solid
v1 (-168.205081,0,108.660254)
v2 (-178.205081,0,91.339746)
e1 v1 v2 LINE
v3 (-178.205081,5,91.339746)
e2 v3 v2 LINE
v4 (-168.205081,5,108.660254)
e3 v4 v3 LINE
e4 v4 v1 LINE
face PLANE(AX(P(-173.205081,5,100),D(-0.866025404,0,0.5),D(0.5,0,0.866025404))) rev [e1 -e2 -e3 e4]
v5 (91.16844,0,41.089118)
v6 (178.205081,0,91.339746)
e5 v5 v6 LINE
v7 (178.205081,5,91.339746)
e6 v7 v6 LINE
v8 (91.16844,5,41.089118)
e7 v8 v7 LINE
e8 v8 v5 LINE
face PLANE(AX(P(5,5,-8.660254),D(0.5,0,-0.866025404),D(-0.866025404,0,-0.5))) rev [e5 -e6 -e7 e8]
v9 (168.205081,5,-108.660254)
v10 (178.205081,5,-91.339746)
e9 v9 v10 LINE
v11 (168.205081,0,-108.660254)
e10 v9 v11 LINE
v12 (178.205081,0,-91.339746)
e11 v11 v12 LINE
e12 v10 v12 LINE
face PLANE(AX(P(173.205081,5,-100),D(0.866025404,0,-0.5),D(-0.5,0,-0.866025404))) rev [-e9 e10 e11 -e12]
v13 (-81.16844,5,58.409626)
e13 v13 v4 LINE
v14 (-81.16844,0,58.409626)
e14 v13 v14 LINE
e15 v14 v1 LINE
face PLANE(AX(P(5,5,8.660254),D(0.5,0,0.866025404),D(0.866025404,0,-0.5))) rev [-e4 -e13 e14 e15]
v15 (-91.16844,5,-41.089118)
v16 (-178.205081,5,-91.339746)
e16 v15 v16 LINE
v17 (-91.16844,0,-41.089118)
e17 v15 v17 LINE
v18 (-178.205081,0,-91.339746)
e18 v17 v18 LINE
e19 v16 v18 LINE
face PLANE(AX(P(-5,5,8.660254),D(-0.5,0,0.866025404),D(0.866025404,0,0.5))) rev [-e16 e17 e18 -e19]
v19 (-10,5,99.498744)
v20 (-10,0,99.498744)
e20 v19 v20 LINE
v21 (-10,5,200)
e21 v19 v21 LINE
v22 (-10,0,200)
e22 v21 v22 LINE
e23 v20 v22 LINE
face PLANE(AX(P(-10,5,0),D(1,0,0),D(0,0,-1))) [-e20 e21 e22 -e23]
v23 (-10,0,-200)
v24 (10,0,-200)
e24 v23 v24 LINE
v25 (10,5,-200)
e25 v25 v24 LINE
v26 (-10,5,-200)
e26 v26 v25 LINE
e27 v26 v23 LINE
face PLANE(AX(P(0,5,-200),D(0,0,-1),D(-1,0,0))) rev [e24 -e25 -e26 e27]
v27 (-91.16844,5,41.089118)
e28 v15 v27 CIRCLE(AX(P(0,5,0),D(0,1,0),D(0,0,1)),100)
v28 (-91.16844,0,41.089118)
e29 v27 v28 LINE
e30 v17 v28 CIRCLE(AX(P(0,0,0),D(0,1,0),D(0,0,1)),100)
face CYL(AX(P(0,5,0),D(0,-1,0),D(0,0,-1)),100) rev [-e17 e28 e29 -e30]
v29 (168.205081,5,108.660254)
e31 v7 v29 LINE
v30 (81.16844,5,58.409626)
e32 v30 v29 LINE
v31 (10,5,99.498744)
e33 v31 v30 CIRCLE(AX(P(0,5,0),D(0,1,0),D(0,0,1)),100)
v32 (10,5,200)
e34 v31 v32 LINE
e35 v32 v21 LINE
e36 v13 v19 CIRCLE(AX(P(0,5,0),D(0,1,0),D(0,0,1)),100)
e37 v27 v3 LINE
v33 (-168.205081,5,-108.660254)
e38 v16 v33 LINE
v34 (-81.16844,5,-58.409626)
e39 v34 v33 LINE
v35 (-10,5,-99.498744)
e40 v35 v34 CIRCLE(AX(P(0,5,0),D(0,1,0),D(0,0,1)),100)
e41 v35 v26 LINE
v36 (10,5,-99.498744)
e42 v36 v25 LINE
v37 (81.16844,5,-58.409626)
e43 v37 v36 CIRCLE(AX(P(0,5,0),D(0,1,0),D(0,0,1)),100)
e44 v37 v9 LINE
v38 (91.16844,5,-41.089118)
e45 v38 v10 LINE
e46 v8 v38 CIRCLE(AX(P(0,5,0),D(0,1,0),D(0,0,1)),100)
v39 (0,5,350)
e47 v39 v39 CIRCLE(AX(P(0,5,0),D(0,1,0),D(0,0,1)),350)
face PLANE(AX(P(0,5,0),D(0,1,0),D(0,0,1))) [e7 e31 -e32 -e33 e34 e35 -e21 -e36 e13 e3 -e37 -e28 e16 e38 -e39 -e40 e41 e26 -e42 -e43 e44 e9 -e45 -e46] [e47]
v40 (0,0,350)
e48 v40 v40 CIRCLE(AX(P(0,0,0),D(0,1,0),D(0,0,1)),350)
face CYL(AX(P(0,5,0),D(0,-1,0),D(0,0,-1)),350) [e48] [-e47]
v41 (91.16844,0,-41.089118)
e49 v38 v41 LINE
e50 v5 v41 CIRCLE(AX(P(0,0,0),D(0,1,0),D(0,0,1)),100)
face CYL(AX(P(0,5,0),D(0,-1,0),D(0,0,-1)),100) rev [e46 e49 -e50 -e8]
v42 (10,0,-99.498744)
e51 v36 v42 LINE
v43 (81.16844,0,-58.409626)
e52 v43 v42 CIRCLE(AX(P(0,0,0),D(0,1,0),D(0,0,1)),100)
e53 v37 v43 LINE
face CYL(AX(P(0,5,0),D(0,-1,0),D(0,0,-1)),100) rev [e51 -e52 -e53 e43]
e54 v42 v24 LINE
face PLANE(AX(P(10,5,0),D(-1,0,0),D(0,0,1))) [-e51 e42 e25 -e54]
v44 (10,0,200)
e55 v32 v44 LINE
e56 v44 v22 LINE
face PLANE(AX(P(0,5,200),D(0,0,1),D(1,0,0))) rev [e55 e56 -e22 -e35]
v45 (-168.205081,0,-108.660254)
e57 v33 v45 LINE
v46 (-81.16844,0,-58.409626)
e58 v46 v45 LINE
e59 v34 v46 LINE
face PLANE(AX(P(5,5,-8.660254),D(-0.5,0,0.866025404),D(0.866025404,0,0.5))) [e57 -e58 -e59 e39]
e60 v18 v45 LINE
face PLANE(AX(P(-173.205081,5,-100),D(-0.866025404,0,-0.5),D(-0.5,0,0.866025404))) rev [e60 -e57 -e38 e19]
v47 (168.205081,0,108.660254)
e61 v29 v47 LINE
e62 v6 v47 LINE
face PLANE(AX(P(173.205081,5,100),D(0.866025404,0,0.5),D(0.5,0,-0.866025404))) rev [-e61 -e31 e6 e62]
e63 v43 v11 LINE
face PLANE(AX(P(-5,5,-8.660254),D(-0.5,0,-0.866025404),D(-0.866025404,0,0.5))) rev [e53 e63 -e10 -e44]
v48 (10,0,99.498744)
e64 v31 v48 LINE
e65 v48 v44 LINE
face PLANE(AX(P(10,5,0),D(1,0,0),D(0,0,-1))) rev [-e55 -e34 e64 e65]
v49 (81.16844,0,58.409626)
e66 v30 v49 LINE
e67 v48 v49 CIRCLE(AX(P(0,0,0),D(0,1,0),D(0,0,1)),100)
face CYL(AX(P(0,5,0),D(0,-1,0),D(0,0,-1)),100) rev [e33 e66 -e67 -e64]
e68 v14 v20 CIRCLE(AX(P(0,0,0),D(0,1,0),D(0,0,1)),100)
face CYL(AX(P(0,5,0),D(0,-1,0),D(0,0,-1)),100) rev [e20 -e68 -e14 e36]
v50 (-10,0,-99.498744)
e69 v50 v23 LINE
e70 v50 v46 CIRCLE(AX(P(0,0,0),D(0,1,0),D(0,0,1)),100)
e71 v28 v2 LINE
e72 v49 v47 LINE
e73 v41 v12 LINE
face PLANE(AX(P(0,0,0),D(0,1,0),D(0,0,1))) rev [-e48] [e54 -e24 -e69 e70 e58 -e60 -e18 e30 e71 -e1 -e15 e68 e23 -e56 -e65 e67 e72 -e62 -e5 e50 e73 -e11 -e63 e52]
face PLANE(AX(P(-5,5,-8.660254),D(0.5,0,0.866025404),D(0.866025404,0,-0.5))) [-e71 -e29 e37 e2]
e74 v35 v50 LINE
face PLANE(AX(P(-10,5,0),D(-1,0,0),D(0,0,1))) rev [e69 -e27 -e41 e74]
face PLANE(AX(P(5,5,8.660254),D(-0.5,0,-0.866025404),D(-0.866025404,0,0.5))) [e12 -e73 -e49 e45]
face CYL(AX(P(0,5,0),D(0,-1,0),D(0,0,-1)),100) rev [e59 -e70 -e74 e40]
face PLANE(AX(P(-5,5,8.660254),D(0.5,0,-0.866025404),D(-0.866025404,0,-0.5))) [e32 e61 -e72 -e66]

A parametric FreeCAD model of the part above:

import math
import FreeCAD as App
import Part
import Sketcher

V = App.Vector
Q = App.Units.Quantity

doc = App.newDocument("Part")
params = doc.addObject("Spreadsheet::Sheet", "Params")
for row, (alias, value) in enumerate([
    ("sketch1_diameter", "700 mm"),
    ("sketch1_radius", "100 mm"),
    ("sketch1_width", "20 mm"),
    ("sketch1_length", "20 mm"),
    ("pad1_length", "5 mm"),
], start=1):
    params.set(f"A{row}", alias)
    params.set(f"B{row}", "=" + value)
    params.setAlias(f"B{row}", alias)

body = doc.addObject("PartDesign::Body", "Body")

sketch1 = body.newObject("Sketcher::SketchObject", "Sketch")
sketch1.AttachmentSupport = (doc.getObject("XZ_Plane"), [""])
sketch1.MapMode = "FlatFace"
sketch1.addGeometry(Part.Circle(V(0, 0, 0), V(0, 0, 1), 350), False)
sketch1.addGeometry(Part.ArcOfCircle(Part.Circle(V(0, 0, 0), V(0, 0, 1), 100), math.radians(-84.26), math.radians(-74.48)), False)
sketch1.addGeometry(Part.ArcOfCircle(Part.Circle(V(0, 0, 0), V(0, 0, 1), 100), math.radians(-74), math.radians(-46)), False)
sketch1.addGeometry(Part.ArcOfCircle(Part.Circle(V(0, 0, 0), V(0, 0, 1), 100), math.radians(-45.52), math.radians(-35.74)), False)
sketch1.addGeometry(Part.LineSegment(V(81, -58, 0), V(168, -109, 0)), False)
sketch1.addGeometry(Part.LineSegment(V(168, -109, 0), V(178, -91, 0)), False)
sketch1.addGeometry(Part.LineSegment(V(178, -91, 0), V(91, -41, 0)), False)
sketch1.addGeometry(Part.ArcOfCircle(Part.Circle(V(0, 0, 0), V(0, 0, 1), 100), math.radians(-24.26), math.radians(-14.48)), False)
sketch1.addGeometry(Part.ArcOfCircle(Part.Circle(V(0, 0, 0), V(0, 0, 1), 100), math.radians(-14), math.radians(14)), False)
sketch1.addGeometry(Part.ArcOfCircle(Part.Circle(V(0, 0, 0), V(0, 0, 1), 100), math.radians(14.48), math.radians(24.26)), False)
sketch1.addGeometry(Part.LineSegment(V(91, 41, 0), V(178, 91, 0)), False)
sketch1.addGeometry(Part.LineSegment(V(178, 91, 0), V(168, 109, 0)), False)
sketch1.addGeometry(Part.LineSegment(V(168, 109, 0), V(81, 58, 0)), False)
sketch1.addGeometry(Part.ArcOfCircle(Part.Circle(V(0, 0, 0), V(0, 0, 1), 100), math.radians(35.74), math.radians(45.52)), False)
sketch1.addGeometry(Part.ArcOfCircle(Part.Circle(V(0, 0, 0), V(0, 0, 1), 100), math.radians(46), math.radians(74)), False)
sketch1.addGeometry(Part.ArcOfCircle(Part.Circle(V(0, 0, 0), V(0, 0, 1), 100), math.radians(74.48), math.radians(84.26)), False)
sketch1.addGeometry(Part.LineSegment(V(10, 99, 0), V(10, 200, 0)), False)
sketch1.addGeometry(Part.LineSegment(V(10, 200, 0), V(-10, 200, 0)), False)
sketch1.addGeometry(Part.LineSegment(V(-10, 200, 0), V(-10, 99, 0)), False)
sketch1.addGeometry(Part.ArcOfCircle(Part.Circle(V(0, 0, 0), V(0, 0, 1), 100), math.radians(95.74), math.radians(105.52)), False)
sketch1.addGeometry(Part.ArcOfCircle(Part.Circle(V(0, 0, 0), V(0, 0, 1), 100), math.radians(106), math.radians(134)), False)
sketch1.addGeometry(Part.ArcOfCircle(Part.Circle(V(0, 0, 0), V(0, 0, 1), 100), math.radians(134.48), math.radians(144.26)), False)
sketch1.addGeometry(Part.LineSegment(V(-81, 58, 0), V(-168, 109, 0)), False)
sketch1.addGeometry(Part.LineSegment(V(-168, 109, 0), V(-178, 91, 0)), False)
sketch1.addGeometry(Part.LineSegment(V(-178, 91, 0), V(-91, 41, 0)), False)
sketch1.addGeometry(Part.ArcOfCircle(Part.Circle(V(0, 0, 0), V(0, 0, 1), 100), math.radians(155.74), math.radians(165.52)), False)
sketch1.addGeometry(Part.ArcOfCircle(Part.Circle(V(0, 0, 0), V(0, 0, 1), 100), math.radians(166), math.radians(194)), False)
sketch1.addGeometry(Part.ArcOfCircle(Part.Circle(V(0, 0, 0), V(0, 0, 1), 100), math.radians(-165.52), math.radians(-155.74)), False)
sketch1.addGeometry(Part.LineSegment(V(-91, -41, 0), V(-178, -91, 0)), False)
sketch1.addGeometry(Part.LineSegment(V(-178, -91, 0), V(-168, -109, 0)), False)
sketch1.addGeometry(Part.LineSegment(V(-168, -109, 0), V(-81, -58, 0)), False)
sketch1.addGeometry(Part.ArcOfCircle(Part.Circle(V(0, 0, 0), V(0, 0, 1), 100), math.radians(-144.26), math.radians(-134.48)), False)
sketch1.addGeometry(Part.ArcOfCircle(Part.Circle(V(0, 0, 0), V(0, 0, 1), 100), math.radians(-134), math.radians(-106)), False)
sketch1.addGeometry(Part.ArcOfCircle(Part.Circle(V(0, 0, 0), V(0, 0, 1), 100), math.radians(-105.52), math.radians(-95.74)), False)
sketch1.addGeometry(Part.LineSegment(V(-10, -99, 0), V(-10, -200, 0)), False)
sketch1.addGeometry(Part.LineSegment(V(-10, -200, 0), V(10, -200, 0)), False)
sketch1.addGeometry(Part.LineSegment(V(10, -200, 0), V(10, -99, 0)), False)
sketch1.addConstraint(Sketcher.Constraint("Tangent", 1, 2, 2, 1))
sketch1.addConstraint(Sketcher.Constraint("Tangent", 2, 2, 3, 1))
sketch1.addConstraint(Sketcher.Constraint("Coincident", 3, 2, 4, 1))
sketch1.addConstraint(Sketcher.Constraint("Coincident", 4, 2, 5, 1))
sketch1.addConstraint(Sketcher.Constraint("Coincident", 5, 2, 6, 1))
sketch1.addConstraint(Sketcher.Constraint("Coincident", 6, 2, 7, 1))
sketch1.addConstraint(Sketcher.Constraint("Tangent", 7, 2, 8, 1))
sketch1.addConstraint(Sketcher.Constraint("Tangent", 8, 2, 9, 1))
sketch1.addConstraint(Sketcher.Constraint("Coincident", 9, 2, 10, 1))
sketch1.addConstraint(Sketcher.Constraint("Coincident", 10, 2, 11, 1))
sketch1.addConstraint(Sketcher.Constraint("Coincident", 11, 2, 12, 1))
sketch1.addConstraint(Sketcher.Constraint("Coincident", 12, 2, 13, 1))
sketch1.addConstraint(Sketcher.Constraint("Tangent", 13, 2, 14, 1))
sketch1.addConstraint(Sketcher.Constraint("Tangent", 14, 2, 15, 1))
sketch1.addConstraint(Sketcher.Constraint("Coincident", 15, 2, 16, 1))
sketch1.addConstraint(Sketcher.Constraint("Coincident", 16, 2, 17, 1))
sketch1.addConstraint(Sketcher.Constraint("Coincident", 17, 2, 18, 1))
sketch1.addConstraint(Sketcher.Constraint("Coincident", 18, 2, 19, 1))
sketch1.addConstraint(Sketcher.Constraint("Tangent", 19, 2, 20, 1))
sketch1.addConstraint(Sketcher.Constraint("Tangent", 20, 2, 21, 1))
sketch1.addConstraint(Sketcher.Constraint("Coincident", 21, 2, 22, 1))
sketch1.addConstraint(Sketcher.Constraint("Coincident", 22, 2, 23, 1))
sketch1.addConstraint(Sketcher.Constraint("Coincident", 23, 2, 24, 1))
sketch1.addConstraint(Sketcher.Constraint("Coincident", 24, 2, 25, 1))
sketch1.addConstraint(Sketcher.Constraint("Tangent", 25, 2, 26, 1))
sketch1.addConstraint(Sketcher.Constraint("Tangent", 26, 2, 27, 1))
sketch1.addConstraint(Sketcher.Constraint("Coincident", 27, 2, 28, 1))
sketch1.addConstraint(Sketcher.Constraint("Coincident", 28, 2, 29, 1))
sketch1.addConstraint(Sketcher.Constraint("Coincident", 29, 2, 30, 1))
sketch1.addConstraint(Sketcher.Constraint("Coincident", 30, 2, 31, 1))
sketch1.addConstraint(Sketcher.Constraint("Tangent", 31, 2, 32, 1))
sketch1.addConstraint(Sketcher.Constraint("Tangent", 32, 2, 33, 1))
sketch1.addConstraint(Sketcher.Constraint("Coincident", 33, 2, 34, 1))
sketch1.addConstraint(Sketcher.Constraint("Coincident", 34, 2, 35, 1))
sketch1.addConstraint(Sketcher.Constraint("Coincident", 35, 2, 36, 1))
sketch1.addConstraint(Sketcher.Constraint("Coincident", 36, 2, 1, 1))
sketch1.addConstraint(Sketcher.Constraint("Vertical", 16))
sketch1.addConstraint(Sketcher.Constraint("Horizontal", 17))
sketch1.addConstraint(Sketcher.Constraint("Vertical", 18))
sketch1.addConstraint(Sketcher.Constraint("Vertical", 34))
sketch1.addConstraint(Sketcher.Constraint("Horizontal", 35))
sketch1.addConstraint(Sketcher.Constraint("Vertical", 36))
sketch1.addConstraint(Sketcher.Constraint("Coincident", 0, 3, -1, 1))
sketch1.addConstraint(Sketcher.Constraint("Coincident", 1, 3, -1, 1))
sketch1.addConstraint(Sketcher.Constraint("Coincident", 3, 3, -1, 1))
sketch1.addConstraint(Sketcher.Constraint("Coincident", 7, 3, -1, 1))
sketch1.addConstraint(Sketcher.Constraint("Coincident", 9, 3, -1, 1))
sketch1.addConstraint(Sketcher.Constraint("Coincident", 13, 3, -1, 1))
sketch1.addConstraint(Sketcher.Constraint("Coincident", 15, 3, -1, 1))
sketch1.addConstraint(Sketcher.Constraint("Coincident", 19, 3, -1, 1))
sketch1.addConstraint(Sketcher.Constraint("Coincident", 21, 3, -1, 1))
sketch1.addConstraint(Sketcher.Constraint("Coincident", 25, 3, -1, 1))
sketch1.addConstraint(Sketcher.Constraint("Coincident", 27, 3, -1, 1))
sketch1.addConstraint(Sketcher.Constraint("Coincident", 31, 3, -1, 1))
sketch1.addConstraint(Sketcher.Constraint("Coincident", 33, 3, -1, 1))
sketch1.addConstraint(Sketcher.Constraint("Equal", 3, 7))
sketch1.addConstraint(Sketcher.Constraint("Equal", 9, 13))
sketch1.addConstraint(Sketcher.Constraint("Equal", 15, 19))
sketch1.addConstraint(Sketcher.Constraint("Equal", 21, 25))
sketch1.addConstraint(Sketcher.Constraint("Equal", 27, 31))
sketch1.addConstraint(Sketcher.Constraint("Symmetric", 4, 2, 22, 2, -1, 1))
sketch1.addConstraint(Sketcher.Constraint("Symmetric", 5, 2, 23, 2, -1, 1))
sketch1.addConstraint(Sketcher.Constraint("Symmetric", 10, 2, 28, 2, -1, 1))
sketch1.addConstraint(Sketcher.Constraint("Symmetric", 11, 2, 29, 2, -1, 1))
sketch1.addConstraint(Sketcher.Constraint("Symmetric", 16, 2, 34, 2, -1, 1))
sketch1.addConstraint(Sketcher.Constraint("Symmetric", 11, 2, 22, 2, -2))
sketch1.addConstraint(Sketcher.Constraint("Symmetric", 10, 2, 23, 2, -2))
sketch1.addConstraint(Sketcher.Constraint("Perpendicular", 4, 5))
sketch1.addConstraint(Sketcher.Constraint("Perpendicular", 5, 6))
sketch1.addConstraint(Sketcher.Constraint("Perpendicular", 10, 11))
sketch1.addConstraint(Sketcher.Constraint("Perpendicular", 11, 12))
sketch1.addConstraint(Sketcher.Constraint("Parallel", 6, 22))
sketch1.addConstraint(Sketcher.Constraint("Perpendicular", 23, 24))
sketch1.addConstraint(Sketcher.Constraint("Parallel", 12, 28))
sketch1.addConstraint(Sketcher.Constraint("Perpendicular", 29, 30))
sketch1.addConstraint(Sketcher.Constraint("Horizontal", 15, 2, 18, 2))
sketch1.addConstraint(Sketcher.Constraint("Horizontal", 14, 2, 19, 2))
sketch1.addConstraint(Sketcher.Constraint("Horizontal", 13, 2, 20, 2))
sketch1.addConstraint(Sketcher.Constraint("Horizontal", 8, 2, 25, 2))
sketch1.addConstraint(Sketcher.Constraint("Horizontal", 7, 2, 26, 2))
sketch1.addConstraint(Sketcher.Constraint("Horizontal", 2, 2, 31, 2))
sketch1.addConstraint(Sketcher.Constraint("Horizontal", 1, 2, 32, 2))
sketch1.addConstraint(Sketcher.Constraint("Horizontal", 33, 2, 36, 2))
sketch1.addConstraint(Sketcher.Constraint("Vertical", 7, 2, 8, 2))
sketch1.addConstraint(Sketcher.Constraint("Vertical", 2, 2, 13, 2))
sketch1.addConstraint(Sketcher.Constraint("Vertical", 1, 2, 14, 2))
sketch1.addConstraint(Sketcher.Constraint("Equal", 4, 6))
sketch1.addConstraint(Sketcher.Constraint("Diameter", 0, 700.0))
sketch1.addConstraint(Sketcher.Constraint("Radius", 1, 100.0))
sketch1.addConstraint(Sketcher.Constraint("DistanceX", 17, 2, 17, 1, 20.0))
sketch1.addConstraint(Sketcher.Constraint("Angle", 4, Q("-30 deg")))
sketch1.addConstraint(Sketcher.Constraint("Distance", 5, 20.0))
sketch1.addConstraint(Sketcher.Constraint("DistanceY", 7, 2, -1, 1, 25.0))
sketch1.addConstraint(Sketcher.Constraint("DistanceY", -1, 1, 16, 2, 200.0))
sketch1.addConstraint(Sketcher.Constraint("DistanceY", 1, 2, 2, 2, 25.0))
sketch1.addConstraint(Sketcher.Constraint("DistanceY", 1, 2, -1, 1, 96.352549))
sketch1.addConstraint(Sketcher.Constraint("DistanceX", -1, 1, 4, 2, 168.205081))
sketch1.setExpression("Constraints[87]", "Params.sketch1_diameter")
sketch1.setExpression("Constraints[88]", "Params.sketch1_radius")
sketch1.setExpression("Constraints[89]", "Params.sketch1_width")
sketch1.setExpression("Constraints[91]", "Params.sketch1_length")
pad1 = body.newObject("PartDesign::Pad", "Pad")
pad1.Profile = sketch1
pad1.setExpression("Length", "Params.pad1_length")
pad1.Reversed = True

doc.recompute()
